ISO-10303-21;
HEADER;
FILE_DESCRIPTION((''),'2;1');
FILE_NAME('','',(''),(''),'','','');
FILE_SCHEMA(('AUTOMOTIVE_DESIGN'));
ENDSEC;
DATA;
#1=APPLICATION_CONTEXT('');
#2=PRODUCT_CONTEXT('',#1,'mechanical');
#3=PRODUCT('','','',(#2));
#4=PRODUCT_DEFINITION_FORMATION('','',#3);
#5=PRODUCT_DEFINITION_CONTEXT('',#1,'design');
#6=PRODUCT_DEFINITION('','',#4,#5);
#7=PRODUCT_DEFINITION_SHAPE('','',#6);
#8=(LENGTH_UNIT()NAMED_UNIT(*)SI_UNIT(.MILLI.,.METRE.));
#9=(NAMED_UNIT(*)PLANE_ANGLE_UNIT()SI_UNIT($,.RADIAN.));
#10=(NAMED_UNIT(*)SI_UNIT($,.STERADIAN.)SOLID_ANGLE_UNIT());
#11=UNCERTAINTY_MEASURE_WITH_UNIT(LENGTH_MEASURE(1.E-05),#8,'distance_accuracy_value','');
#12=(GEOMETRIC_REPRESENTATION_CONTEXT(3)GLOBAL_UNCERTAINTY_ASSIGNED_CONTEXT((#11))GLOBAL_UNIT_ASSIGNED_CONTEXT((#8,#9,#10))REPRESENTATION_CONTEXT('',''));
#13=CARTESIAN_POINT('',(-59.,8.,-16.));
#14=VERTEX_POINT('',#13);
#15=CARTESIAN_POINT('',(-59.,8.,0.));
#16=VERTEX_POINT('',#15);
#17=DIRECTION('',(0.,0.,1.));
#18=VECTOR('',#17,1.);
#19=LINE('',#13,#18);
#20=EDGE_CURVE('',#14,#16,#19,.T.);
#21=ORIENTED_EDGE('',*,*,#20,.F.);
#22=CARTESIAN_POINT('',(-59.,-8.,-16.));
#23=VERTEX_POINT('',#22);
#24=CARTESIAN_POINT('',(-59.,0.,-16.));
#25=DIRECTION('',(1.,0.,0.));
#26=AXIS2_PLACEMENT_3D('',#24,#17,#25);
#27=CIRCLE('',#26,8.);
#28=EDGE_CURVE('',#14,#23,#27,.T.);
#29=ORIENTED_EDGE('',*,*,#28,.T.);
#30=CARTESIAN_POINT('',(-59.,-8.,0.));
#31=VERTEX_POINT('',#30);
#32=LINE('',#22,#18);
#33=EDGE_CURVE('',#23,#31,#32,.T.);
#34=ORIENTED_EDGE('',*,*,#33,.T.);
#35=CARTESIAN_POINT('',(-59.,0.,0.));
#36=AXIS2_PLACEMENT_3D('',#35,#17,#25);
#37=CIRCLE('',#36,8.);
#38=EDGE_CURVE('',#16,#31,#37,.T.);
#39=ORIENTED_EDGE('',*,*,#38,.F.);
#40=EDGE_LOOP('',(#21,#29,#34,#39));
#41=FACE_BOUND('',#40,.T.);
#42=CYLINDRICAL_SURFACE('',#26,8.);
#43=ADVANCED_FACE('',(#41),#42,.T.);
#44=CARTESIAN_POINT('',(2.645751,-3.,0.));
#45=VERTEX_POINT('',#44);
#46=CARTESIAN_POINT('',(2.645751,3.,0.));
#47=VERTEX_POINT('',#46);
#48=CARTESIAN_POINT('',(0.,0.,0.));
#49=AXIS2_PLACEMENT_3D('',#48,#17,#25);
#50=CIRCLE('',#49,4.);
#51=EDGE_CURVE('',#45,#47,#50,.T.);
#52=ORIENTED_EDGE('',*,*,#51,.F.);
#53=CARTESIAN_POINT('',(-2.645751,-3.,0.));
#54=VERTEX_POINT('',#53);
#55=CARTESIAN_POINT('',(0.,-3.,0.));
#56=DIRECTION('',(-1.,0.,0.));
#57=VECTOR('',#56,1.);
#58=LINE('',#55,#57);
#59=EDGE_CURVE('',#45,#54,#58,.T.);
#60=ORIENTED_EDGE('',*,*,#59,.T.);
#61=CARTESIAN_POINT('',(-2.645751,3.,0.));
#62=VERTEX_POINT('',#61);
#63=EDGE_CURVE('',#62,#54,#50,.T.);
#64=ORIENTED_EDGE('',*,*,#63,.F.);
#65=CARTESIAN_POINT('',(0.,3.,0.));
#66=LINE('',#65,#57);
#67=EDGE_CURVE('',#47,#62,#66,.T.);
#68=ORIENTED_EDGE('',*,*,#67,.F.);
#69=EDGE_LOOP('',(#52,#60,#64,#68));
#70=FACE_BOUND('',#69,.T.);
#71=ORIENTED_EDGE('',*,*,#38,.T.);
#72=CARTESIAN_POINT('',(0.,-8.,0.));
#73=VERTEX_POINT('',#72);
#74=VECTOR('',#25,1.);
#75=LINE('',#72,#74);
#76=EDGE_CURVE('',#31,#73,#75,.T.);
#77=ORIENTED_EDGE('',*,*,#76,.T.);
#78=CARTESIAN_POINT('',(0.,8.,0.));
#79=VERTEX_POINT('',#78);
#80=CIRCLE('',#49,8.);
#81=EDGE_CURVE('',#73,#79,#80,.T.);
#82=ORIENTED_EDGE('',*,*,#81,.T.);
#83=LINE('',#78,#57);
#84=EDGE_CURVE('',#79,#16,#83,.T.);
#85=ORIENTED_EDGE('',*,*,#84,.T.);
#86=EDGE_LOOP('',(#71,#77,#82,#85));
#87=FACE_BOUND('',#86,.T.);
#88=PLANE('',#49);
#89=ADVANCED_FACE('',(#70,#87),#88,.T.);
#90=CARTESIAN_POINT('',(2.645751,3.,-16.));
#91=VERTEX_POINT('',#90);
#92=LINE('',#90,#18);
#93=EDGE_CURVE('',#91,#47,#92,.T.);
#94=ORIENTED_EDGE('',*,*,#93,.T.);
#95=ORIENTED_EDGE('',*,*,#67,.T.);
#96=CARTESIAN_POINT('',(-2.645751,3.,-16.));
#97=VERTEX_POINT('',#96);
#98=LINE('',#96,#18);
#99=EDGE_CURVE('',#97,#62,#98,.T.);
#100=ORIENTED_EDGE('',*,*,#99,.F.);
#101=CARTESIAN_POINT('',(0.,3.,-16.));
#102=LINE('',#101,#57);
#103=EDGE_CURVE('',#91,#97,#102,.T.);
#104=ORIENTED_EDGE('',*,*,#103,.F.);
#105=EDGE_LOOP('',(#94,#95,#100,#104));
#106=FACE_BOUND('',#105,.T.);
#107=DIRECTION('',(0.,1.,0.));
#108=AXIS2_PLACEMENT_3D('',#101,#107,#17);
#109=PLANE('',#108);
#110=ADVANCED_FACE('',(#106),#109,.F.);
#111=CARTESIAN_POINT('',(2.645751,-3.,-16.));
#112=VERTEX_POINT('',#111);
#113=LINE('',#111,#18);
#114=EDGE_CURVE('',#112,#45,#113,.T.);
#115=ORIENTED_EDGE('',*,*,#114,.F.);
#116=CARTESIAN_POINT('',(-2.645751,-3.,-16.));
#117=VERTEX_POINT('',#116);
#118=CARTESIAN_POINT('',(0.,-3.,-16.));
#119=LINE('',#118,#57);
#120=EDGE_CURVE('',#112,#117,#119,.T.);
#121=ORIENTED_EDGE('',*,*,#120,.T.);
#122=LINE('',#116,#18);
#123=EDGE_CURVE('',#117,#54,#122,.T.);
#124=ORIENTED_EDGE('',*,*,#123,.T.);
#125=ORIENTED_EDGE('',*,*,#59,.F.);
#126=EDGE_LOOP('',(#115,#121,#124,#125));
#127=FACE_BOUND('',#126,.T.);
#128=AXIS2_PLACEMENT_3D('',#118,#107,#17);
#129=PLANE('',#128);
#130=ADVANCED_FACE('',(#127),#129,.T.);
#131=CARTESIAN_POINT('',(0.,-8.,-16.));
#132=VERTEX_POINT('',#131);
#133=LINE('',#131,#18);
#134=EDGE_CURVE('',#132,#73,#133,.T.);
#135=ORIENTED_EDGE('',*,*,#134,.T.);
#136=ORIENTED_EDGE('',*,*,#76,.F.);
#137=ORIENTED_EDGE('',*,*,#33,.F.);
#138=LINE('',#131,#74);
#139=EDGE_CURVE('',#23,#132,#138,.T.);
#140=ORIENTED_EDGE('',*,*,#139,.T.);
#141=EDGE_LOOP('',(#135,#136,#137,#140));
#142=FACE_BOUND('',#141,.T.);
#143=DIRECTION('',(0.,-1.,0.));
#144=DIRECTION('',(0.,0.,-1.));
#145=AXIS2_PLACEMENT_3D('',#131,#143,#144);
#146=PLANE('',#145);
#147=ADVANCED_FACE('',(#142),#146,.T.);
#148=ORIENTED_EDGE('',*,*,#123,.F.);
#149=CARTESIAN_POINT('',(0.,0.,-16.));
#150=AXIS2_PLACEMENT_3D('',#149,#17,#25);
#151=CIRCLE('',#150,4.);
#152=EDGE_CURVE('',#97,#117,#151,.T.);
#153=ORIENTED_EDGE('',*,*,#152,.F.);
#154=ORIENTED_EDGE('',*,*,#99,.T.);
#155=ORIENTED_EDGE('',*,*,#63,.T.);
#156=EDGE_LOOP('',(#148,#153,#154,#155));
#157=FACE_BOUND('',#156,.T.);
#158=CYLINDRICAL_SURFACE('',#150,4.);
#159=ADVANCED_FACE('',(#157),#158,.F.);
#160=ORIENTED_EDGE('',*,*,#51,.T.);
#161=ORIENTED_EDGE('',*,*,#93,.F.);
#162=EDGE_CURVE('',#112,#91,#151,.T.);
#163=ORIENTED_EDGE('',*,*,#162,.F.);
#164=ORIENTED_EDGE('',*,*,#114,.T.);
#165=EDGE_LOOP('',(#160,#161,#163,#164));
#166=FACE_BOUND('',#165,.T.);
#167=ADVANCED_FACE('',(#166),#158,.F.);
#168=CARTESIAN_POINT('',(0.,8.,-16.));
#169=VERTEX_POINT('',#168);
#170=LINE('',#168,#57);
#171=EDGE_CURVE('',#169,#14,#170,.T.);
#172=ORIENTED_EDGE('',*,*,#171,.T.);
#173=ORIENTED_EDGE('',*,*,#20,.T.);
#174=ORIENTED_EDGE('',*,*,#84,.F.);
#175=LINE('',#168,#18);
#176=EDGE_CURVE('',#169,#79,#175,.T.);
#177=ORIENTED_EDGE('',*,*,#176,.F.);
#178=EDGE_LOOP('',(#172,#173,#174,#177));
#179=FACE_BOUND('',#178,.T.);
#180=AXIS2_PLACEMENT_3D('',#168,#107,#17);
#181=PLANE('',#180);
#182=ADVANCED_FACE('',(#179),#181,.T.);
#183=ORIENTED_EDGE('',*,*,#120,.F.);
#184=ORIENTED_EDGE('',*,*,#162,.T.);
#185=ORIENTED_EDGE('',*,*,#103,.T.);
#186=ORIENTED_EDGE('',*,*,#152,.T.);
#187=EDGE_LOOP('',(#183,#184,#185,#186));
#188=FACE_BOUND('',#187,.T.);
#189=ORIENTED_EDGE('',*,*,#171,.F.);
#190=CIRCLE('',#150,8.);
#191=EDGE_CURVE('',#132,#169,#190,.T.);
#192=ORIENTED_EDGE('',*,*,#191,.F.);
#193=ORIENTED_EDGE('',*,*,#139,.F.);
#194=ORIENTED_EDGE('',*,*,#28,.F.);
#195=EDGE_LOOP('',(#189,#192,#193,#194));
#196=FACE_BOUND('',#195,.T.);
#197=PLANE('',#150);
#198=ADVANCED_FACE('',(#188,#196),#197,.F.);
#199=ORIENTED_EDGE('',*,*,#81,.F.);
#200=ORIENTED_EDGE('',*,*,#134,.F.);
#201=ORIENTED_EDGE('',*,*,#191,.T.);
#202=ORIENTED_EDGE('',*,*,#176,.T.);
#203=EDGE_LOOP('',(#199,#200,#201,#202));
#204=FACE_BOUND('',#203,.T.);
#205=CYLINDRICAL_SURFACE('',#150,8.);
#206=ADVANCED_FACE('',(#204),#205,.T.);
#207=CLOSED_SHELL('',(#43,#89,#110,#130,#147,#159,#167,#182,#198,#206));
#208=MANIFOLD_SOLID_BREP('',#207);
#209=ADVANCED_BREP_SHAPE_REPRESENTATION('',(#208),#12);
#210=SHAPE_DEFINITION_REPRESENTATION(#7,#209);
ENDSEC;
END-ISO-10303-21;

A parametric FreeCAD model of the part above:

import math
import FreeCAD as App
import Part
import Sketcher
Q = App.Units.Quantity

doc = App.newDocument("Part")
body = doc.addObject("PartDesign::Body", "Body")

sketch1 = body.newObject("Sketcher::SketchObject", "Sketch")
sketch1.AttachmentSupport = (doc.getObject("XY_Plane"), [""])
sketch1.MapMode = "FlatFace"
sketch1.addGeometry([
    Part.ArcOfCircle(Part.Circle(App.Vector(-59, 0, 0), App.Vector(0, 0, 1), 8), math.radians(90), math.radians(270)),
    Part.LineSegment(App.Vector(-59, -8, 0), App.Vector(0, -8, 0)),
    Part.ArcOfCircle(Part.Circle(App.Vector(0, 0, 0), App.Vector(0, 0, 1), 8), math.radians(-90), math.radians(90)),
    Part.LineSegment(App.Vector(0, 8, 0), App.Vector(-59, 8, 0)),
    Part.LineSegment(App.Vector(2.6, -3, 0), App.Vector(-2.6, -3, 0)),
    Part.ArcOfCircle(Part.Circle(App.Vector(0, 0, 0), App.Vector(0, 0, 1), 4), math.radians(131), math.radians(229)),
    Part.LineSegment(App.Vector(-2.6, 3, 0), App.Vector(2.6, 3, 0)),
    Part.ArcOfCircle(Part.Circle(App.Vector(0, 0, 0), App.Vector(0, 0, 1), 4), math.radians(-49), math.radians(49)),
], False)
sketch1.addConstraint([
    Sketcher.Constraint("Tangent", 0, 2, 1, 1),
    Sketcher.Constraint("Tangent", 1, 2, 2, 1),
    Sketcher.Constraint("Tangent", 2, 2, 3, 1),
    Sketcher.Constraint("Tangent", 3, 2, 0, 1),
    Sketcher.Constraint("Coincident", 4, 2, 5, 2),
    Sketcher.Constraint("Coincident", 5, 1, 6, 1),
    Sketcher.Constraint("Coincident", 6, 2, 7, 2),
    Sketcher.Constraint("Coincident", 7, 1, 4, 1),
    Sketcher.Constraint("Horizontal", 1),
    Sketcher.Constraint("Horizontal", 3),
    Sketcher.Constraint("Horizontal", 4),
    Sketcher.Constraint("Horizontal", 6),
    Sketcher.Constraint("Coincident", 2, 3, -1, 1),
    Sketcher.Constraint("Coincident", 5, 3, -1, 1),
    Sketcher.Constraint("Coincident", 7, 3, -1, 1),
    Sketcher.Constraint("Equal", 5, 7),
    Sketcher.Constraint("Vertical", 4, 2, 5, 1),
    Sketcher.Constraint("Radius", 0, Q("8 mm")),
    Sketcher.Constraint("Radius", 5, Q("4 mm")),
    Sketcher.Constraint("DistanceX", 1, 1, 1, 2, Q("59 mm")),
    Sketcher.Constraint("DistanceY", 4, 2, -1, 1, Q("3 mm")),
])
pad1 = body.newObject("PartDesign::Pad", "Pad")
pad1.Profile = sketch1
pad1.Length = 16
pad1.Reversed = True

doc.recompute()
